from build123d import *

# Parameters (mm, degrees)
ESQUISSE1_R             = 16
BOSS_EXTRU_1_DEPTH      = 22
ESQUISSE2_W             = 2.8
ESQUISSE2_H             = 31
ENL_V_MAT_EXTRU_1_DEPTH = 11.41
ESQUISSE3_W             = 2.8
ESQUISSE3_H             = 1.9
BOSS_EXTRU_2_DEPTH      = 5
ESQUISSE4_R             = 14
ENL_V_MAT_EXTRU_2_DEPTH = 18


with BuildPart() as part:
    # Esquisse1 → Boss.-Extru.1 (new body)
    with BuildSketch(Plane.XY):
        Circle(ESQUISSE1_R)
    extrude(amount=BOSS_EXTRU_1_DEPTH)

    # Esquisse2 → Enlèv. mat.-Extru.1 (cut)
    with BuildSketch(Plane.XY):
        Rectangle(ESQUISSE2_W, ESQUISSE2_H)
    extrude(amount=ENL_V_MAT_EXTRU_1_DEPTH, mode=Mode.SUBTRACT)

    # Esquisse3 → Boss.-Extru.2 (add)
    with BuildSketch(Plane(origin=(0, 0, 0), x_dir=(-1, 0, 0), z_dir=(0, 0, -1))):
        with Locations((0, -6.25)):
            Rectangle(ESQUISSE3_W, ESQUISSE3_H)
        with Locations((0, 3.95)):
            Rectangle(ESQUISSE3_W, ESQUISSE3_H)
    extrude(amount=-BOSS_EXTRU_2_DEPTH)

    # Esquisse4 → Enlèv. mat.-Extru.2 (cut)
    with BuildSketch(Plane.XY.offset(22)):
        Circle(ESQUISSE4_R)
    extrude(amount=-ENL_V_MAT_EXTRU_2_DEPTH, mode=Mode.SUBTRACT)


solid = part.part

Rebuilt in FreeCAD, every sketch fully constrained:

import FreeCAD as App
import Part
import Sketcher


def add_polygon(sketch, points):
    """Adds a closed chain of lines whose ends are joined by coincident constraints."""
    first, n = sketch.GeometryCount, len(points)
    for a, b in zip(points, points[1:] + points[:1]):
        sketch.addGeometry(Part.LineSegment(App.Vector(*a, 0), App.Vector(*b, 0)), False)
    for i in range(n):
        sketch.addConstraint(Sketcher.Constraint("Coincident", first + i, 2, first + (i + 1) % n, 1))

doc = App.newDocument("Part")
body = doc.addObject("PartDesign::Body", "Body")

sketch1 = doc.addObject("Sketcher::SketchObject", "Sketch")
body.addObject(sketch1)
sketch1.AttachmentSupport = (doc.XY_Plane, [""])
sketch1.MapMode = "FlatFace"
sketch1.addGeometry(Part.Circle(App.Vector(0, 0, 0), App.Vector(0, 0, 1), 16), False)
sketch1.addConstraint([
    Sketcher.Constraint("Coincident", 0, 3, -1, 1),
    Sketcher.Constraint("Diameter", 0, 32.0),
])
pad1 = doc.addObject("PartDesign::Pad", "Pad")
body.addObject(pad1)
pad1.Profile = sketch1
pad1.Length = 22

sketch2 = doc.addObject("Sketcher::SketchObject", "Sketch001")
body.addObject(sketch2)
sketch2.AttachmentSupport = (doc.XY_Plane, [""])
sketch2.MapMode = "FlatFace"
add_polygon(sketch2, [(-1.4, 15.5), (-1.4, -15.5), (1.4, -15.5), (1.4, 15.5)])
sketch2.addConstraint([
    Sketcher.Constraint("Vertical", 0),
    Sketcher.Constraint("Horizontal", 1),
    Sketcher.Constraint("Vertical", 2),
    Sketcher.Constraint("Horizontal", 3),
    Sketcher.Constraint("Symmetric", 0, 2, 2, 2, -1, 1),
    Sketcher.Constraint("DistanceY", 0, 2, 0, 1, 31.0),
    Sketcher.Constraint("DistanceX", 1, 1, 1, 2, 2.8),
])
pocket1 = doc.addObject("PartDesign::Pocket", "Pocket")
body.addObject(pocket1)
pocket1.Profile = sketch2
pocket1.Length = 11.41
pocket1.Reversed = True

sketch3 = doc.addObject("Sketcher::SketchObject", "Sketch002")
body.addObject(sketch3)
sketch3.AttachmentSupport = (doc.XY_Plane, [""])
sketch3.MapMode = "FlatFace"
add_polygon(sketch3, [(1.4, -5.3), (1.4, -7.2), (-1.4, -7.2), (-1.4, -5.3)])
add_polygon(sketch3, [(1.4, 4.9), (1.4, 3), (-1.4, 3), (-1.4, 4.9)])
sketch3.addConstraint([
    Sketcher.Constraint("Vertical", 0),
    Sketcher.Constraint("Horizontal", 1),
    Sketcher.Constraint("Vertical", 2),
    Sketcher.Constraint("Horizontal", 3),
    Sketcher.Constraint("Vertical", 4),
    Sketcher.Constraint("Horizontal", 5),
    Sketcher.Constraint("Vertical", 6),
    Sketcher.Constraint("Horizontal", 7),
    Sketcher.Constraint("Vertical", 3, 2, 4, 2),
    Sketcher.Constraint("Vertical", 2, 2, 5, 2),
    Sketcher.Constraint("Equal", 2, 4),
    Sketcher.Constraint("DistanceX", 1, 2, 1, 1, 2.8),
    Sketcher.Constraint("DistanceY", 0, 2, 0, 1, 1.9),
    Sketcher.Constraint("DistanceY", -1, 1, 4, 2, 3.0),
    Sketcher.Constraint("DistanceX", -1, 1, 0, 2, 1.4),
    Sketcher.Constraint("DistanceY", 0, 2, -1, 1, 7.2),
])
pad2 = doc.addObject("PartDesign::Pad", "Pad001")
body.addObject(pad2)
pad2.Profile = sketch3
pad2.Length = 5

sketch4 = doc.addObject("Sketcher::SketchObject", "Sketch003")
body.addObject(sketch4)
sketch4.AttachmentSupport = (doc.XY_Plane, [""])
sketch4.MapMode = "FlatFace"
sketch4.AttachmentOffset = App.Placement(App.Vector(0, 0, 22), App.Rotation())
sketch4.addGeometry(Part.Circle(App.Vector(0, 0, 0), App.Vector(0, 0, 1), 14), False)
sketch4.addConstraint([
    Sketcher.Constraint("Coincident", 0, 3, -1, 1),
    Sketcher.Constraint("Diameter", 0, 28.0),
])
pocket2 = doc.addObject("PartDesign::Pocket", "Pocket001")
body.addObject(pocket2)
pocket2.Profile = sketch4
pocket2.Length = 18

doc.recompute()
